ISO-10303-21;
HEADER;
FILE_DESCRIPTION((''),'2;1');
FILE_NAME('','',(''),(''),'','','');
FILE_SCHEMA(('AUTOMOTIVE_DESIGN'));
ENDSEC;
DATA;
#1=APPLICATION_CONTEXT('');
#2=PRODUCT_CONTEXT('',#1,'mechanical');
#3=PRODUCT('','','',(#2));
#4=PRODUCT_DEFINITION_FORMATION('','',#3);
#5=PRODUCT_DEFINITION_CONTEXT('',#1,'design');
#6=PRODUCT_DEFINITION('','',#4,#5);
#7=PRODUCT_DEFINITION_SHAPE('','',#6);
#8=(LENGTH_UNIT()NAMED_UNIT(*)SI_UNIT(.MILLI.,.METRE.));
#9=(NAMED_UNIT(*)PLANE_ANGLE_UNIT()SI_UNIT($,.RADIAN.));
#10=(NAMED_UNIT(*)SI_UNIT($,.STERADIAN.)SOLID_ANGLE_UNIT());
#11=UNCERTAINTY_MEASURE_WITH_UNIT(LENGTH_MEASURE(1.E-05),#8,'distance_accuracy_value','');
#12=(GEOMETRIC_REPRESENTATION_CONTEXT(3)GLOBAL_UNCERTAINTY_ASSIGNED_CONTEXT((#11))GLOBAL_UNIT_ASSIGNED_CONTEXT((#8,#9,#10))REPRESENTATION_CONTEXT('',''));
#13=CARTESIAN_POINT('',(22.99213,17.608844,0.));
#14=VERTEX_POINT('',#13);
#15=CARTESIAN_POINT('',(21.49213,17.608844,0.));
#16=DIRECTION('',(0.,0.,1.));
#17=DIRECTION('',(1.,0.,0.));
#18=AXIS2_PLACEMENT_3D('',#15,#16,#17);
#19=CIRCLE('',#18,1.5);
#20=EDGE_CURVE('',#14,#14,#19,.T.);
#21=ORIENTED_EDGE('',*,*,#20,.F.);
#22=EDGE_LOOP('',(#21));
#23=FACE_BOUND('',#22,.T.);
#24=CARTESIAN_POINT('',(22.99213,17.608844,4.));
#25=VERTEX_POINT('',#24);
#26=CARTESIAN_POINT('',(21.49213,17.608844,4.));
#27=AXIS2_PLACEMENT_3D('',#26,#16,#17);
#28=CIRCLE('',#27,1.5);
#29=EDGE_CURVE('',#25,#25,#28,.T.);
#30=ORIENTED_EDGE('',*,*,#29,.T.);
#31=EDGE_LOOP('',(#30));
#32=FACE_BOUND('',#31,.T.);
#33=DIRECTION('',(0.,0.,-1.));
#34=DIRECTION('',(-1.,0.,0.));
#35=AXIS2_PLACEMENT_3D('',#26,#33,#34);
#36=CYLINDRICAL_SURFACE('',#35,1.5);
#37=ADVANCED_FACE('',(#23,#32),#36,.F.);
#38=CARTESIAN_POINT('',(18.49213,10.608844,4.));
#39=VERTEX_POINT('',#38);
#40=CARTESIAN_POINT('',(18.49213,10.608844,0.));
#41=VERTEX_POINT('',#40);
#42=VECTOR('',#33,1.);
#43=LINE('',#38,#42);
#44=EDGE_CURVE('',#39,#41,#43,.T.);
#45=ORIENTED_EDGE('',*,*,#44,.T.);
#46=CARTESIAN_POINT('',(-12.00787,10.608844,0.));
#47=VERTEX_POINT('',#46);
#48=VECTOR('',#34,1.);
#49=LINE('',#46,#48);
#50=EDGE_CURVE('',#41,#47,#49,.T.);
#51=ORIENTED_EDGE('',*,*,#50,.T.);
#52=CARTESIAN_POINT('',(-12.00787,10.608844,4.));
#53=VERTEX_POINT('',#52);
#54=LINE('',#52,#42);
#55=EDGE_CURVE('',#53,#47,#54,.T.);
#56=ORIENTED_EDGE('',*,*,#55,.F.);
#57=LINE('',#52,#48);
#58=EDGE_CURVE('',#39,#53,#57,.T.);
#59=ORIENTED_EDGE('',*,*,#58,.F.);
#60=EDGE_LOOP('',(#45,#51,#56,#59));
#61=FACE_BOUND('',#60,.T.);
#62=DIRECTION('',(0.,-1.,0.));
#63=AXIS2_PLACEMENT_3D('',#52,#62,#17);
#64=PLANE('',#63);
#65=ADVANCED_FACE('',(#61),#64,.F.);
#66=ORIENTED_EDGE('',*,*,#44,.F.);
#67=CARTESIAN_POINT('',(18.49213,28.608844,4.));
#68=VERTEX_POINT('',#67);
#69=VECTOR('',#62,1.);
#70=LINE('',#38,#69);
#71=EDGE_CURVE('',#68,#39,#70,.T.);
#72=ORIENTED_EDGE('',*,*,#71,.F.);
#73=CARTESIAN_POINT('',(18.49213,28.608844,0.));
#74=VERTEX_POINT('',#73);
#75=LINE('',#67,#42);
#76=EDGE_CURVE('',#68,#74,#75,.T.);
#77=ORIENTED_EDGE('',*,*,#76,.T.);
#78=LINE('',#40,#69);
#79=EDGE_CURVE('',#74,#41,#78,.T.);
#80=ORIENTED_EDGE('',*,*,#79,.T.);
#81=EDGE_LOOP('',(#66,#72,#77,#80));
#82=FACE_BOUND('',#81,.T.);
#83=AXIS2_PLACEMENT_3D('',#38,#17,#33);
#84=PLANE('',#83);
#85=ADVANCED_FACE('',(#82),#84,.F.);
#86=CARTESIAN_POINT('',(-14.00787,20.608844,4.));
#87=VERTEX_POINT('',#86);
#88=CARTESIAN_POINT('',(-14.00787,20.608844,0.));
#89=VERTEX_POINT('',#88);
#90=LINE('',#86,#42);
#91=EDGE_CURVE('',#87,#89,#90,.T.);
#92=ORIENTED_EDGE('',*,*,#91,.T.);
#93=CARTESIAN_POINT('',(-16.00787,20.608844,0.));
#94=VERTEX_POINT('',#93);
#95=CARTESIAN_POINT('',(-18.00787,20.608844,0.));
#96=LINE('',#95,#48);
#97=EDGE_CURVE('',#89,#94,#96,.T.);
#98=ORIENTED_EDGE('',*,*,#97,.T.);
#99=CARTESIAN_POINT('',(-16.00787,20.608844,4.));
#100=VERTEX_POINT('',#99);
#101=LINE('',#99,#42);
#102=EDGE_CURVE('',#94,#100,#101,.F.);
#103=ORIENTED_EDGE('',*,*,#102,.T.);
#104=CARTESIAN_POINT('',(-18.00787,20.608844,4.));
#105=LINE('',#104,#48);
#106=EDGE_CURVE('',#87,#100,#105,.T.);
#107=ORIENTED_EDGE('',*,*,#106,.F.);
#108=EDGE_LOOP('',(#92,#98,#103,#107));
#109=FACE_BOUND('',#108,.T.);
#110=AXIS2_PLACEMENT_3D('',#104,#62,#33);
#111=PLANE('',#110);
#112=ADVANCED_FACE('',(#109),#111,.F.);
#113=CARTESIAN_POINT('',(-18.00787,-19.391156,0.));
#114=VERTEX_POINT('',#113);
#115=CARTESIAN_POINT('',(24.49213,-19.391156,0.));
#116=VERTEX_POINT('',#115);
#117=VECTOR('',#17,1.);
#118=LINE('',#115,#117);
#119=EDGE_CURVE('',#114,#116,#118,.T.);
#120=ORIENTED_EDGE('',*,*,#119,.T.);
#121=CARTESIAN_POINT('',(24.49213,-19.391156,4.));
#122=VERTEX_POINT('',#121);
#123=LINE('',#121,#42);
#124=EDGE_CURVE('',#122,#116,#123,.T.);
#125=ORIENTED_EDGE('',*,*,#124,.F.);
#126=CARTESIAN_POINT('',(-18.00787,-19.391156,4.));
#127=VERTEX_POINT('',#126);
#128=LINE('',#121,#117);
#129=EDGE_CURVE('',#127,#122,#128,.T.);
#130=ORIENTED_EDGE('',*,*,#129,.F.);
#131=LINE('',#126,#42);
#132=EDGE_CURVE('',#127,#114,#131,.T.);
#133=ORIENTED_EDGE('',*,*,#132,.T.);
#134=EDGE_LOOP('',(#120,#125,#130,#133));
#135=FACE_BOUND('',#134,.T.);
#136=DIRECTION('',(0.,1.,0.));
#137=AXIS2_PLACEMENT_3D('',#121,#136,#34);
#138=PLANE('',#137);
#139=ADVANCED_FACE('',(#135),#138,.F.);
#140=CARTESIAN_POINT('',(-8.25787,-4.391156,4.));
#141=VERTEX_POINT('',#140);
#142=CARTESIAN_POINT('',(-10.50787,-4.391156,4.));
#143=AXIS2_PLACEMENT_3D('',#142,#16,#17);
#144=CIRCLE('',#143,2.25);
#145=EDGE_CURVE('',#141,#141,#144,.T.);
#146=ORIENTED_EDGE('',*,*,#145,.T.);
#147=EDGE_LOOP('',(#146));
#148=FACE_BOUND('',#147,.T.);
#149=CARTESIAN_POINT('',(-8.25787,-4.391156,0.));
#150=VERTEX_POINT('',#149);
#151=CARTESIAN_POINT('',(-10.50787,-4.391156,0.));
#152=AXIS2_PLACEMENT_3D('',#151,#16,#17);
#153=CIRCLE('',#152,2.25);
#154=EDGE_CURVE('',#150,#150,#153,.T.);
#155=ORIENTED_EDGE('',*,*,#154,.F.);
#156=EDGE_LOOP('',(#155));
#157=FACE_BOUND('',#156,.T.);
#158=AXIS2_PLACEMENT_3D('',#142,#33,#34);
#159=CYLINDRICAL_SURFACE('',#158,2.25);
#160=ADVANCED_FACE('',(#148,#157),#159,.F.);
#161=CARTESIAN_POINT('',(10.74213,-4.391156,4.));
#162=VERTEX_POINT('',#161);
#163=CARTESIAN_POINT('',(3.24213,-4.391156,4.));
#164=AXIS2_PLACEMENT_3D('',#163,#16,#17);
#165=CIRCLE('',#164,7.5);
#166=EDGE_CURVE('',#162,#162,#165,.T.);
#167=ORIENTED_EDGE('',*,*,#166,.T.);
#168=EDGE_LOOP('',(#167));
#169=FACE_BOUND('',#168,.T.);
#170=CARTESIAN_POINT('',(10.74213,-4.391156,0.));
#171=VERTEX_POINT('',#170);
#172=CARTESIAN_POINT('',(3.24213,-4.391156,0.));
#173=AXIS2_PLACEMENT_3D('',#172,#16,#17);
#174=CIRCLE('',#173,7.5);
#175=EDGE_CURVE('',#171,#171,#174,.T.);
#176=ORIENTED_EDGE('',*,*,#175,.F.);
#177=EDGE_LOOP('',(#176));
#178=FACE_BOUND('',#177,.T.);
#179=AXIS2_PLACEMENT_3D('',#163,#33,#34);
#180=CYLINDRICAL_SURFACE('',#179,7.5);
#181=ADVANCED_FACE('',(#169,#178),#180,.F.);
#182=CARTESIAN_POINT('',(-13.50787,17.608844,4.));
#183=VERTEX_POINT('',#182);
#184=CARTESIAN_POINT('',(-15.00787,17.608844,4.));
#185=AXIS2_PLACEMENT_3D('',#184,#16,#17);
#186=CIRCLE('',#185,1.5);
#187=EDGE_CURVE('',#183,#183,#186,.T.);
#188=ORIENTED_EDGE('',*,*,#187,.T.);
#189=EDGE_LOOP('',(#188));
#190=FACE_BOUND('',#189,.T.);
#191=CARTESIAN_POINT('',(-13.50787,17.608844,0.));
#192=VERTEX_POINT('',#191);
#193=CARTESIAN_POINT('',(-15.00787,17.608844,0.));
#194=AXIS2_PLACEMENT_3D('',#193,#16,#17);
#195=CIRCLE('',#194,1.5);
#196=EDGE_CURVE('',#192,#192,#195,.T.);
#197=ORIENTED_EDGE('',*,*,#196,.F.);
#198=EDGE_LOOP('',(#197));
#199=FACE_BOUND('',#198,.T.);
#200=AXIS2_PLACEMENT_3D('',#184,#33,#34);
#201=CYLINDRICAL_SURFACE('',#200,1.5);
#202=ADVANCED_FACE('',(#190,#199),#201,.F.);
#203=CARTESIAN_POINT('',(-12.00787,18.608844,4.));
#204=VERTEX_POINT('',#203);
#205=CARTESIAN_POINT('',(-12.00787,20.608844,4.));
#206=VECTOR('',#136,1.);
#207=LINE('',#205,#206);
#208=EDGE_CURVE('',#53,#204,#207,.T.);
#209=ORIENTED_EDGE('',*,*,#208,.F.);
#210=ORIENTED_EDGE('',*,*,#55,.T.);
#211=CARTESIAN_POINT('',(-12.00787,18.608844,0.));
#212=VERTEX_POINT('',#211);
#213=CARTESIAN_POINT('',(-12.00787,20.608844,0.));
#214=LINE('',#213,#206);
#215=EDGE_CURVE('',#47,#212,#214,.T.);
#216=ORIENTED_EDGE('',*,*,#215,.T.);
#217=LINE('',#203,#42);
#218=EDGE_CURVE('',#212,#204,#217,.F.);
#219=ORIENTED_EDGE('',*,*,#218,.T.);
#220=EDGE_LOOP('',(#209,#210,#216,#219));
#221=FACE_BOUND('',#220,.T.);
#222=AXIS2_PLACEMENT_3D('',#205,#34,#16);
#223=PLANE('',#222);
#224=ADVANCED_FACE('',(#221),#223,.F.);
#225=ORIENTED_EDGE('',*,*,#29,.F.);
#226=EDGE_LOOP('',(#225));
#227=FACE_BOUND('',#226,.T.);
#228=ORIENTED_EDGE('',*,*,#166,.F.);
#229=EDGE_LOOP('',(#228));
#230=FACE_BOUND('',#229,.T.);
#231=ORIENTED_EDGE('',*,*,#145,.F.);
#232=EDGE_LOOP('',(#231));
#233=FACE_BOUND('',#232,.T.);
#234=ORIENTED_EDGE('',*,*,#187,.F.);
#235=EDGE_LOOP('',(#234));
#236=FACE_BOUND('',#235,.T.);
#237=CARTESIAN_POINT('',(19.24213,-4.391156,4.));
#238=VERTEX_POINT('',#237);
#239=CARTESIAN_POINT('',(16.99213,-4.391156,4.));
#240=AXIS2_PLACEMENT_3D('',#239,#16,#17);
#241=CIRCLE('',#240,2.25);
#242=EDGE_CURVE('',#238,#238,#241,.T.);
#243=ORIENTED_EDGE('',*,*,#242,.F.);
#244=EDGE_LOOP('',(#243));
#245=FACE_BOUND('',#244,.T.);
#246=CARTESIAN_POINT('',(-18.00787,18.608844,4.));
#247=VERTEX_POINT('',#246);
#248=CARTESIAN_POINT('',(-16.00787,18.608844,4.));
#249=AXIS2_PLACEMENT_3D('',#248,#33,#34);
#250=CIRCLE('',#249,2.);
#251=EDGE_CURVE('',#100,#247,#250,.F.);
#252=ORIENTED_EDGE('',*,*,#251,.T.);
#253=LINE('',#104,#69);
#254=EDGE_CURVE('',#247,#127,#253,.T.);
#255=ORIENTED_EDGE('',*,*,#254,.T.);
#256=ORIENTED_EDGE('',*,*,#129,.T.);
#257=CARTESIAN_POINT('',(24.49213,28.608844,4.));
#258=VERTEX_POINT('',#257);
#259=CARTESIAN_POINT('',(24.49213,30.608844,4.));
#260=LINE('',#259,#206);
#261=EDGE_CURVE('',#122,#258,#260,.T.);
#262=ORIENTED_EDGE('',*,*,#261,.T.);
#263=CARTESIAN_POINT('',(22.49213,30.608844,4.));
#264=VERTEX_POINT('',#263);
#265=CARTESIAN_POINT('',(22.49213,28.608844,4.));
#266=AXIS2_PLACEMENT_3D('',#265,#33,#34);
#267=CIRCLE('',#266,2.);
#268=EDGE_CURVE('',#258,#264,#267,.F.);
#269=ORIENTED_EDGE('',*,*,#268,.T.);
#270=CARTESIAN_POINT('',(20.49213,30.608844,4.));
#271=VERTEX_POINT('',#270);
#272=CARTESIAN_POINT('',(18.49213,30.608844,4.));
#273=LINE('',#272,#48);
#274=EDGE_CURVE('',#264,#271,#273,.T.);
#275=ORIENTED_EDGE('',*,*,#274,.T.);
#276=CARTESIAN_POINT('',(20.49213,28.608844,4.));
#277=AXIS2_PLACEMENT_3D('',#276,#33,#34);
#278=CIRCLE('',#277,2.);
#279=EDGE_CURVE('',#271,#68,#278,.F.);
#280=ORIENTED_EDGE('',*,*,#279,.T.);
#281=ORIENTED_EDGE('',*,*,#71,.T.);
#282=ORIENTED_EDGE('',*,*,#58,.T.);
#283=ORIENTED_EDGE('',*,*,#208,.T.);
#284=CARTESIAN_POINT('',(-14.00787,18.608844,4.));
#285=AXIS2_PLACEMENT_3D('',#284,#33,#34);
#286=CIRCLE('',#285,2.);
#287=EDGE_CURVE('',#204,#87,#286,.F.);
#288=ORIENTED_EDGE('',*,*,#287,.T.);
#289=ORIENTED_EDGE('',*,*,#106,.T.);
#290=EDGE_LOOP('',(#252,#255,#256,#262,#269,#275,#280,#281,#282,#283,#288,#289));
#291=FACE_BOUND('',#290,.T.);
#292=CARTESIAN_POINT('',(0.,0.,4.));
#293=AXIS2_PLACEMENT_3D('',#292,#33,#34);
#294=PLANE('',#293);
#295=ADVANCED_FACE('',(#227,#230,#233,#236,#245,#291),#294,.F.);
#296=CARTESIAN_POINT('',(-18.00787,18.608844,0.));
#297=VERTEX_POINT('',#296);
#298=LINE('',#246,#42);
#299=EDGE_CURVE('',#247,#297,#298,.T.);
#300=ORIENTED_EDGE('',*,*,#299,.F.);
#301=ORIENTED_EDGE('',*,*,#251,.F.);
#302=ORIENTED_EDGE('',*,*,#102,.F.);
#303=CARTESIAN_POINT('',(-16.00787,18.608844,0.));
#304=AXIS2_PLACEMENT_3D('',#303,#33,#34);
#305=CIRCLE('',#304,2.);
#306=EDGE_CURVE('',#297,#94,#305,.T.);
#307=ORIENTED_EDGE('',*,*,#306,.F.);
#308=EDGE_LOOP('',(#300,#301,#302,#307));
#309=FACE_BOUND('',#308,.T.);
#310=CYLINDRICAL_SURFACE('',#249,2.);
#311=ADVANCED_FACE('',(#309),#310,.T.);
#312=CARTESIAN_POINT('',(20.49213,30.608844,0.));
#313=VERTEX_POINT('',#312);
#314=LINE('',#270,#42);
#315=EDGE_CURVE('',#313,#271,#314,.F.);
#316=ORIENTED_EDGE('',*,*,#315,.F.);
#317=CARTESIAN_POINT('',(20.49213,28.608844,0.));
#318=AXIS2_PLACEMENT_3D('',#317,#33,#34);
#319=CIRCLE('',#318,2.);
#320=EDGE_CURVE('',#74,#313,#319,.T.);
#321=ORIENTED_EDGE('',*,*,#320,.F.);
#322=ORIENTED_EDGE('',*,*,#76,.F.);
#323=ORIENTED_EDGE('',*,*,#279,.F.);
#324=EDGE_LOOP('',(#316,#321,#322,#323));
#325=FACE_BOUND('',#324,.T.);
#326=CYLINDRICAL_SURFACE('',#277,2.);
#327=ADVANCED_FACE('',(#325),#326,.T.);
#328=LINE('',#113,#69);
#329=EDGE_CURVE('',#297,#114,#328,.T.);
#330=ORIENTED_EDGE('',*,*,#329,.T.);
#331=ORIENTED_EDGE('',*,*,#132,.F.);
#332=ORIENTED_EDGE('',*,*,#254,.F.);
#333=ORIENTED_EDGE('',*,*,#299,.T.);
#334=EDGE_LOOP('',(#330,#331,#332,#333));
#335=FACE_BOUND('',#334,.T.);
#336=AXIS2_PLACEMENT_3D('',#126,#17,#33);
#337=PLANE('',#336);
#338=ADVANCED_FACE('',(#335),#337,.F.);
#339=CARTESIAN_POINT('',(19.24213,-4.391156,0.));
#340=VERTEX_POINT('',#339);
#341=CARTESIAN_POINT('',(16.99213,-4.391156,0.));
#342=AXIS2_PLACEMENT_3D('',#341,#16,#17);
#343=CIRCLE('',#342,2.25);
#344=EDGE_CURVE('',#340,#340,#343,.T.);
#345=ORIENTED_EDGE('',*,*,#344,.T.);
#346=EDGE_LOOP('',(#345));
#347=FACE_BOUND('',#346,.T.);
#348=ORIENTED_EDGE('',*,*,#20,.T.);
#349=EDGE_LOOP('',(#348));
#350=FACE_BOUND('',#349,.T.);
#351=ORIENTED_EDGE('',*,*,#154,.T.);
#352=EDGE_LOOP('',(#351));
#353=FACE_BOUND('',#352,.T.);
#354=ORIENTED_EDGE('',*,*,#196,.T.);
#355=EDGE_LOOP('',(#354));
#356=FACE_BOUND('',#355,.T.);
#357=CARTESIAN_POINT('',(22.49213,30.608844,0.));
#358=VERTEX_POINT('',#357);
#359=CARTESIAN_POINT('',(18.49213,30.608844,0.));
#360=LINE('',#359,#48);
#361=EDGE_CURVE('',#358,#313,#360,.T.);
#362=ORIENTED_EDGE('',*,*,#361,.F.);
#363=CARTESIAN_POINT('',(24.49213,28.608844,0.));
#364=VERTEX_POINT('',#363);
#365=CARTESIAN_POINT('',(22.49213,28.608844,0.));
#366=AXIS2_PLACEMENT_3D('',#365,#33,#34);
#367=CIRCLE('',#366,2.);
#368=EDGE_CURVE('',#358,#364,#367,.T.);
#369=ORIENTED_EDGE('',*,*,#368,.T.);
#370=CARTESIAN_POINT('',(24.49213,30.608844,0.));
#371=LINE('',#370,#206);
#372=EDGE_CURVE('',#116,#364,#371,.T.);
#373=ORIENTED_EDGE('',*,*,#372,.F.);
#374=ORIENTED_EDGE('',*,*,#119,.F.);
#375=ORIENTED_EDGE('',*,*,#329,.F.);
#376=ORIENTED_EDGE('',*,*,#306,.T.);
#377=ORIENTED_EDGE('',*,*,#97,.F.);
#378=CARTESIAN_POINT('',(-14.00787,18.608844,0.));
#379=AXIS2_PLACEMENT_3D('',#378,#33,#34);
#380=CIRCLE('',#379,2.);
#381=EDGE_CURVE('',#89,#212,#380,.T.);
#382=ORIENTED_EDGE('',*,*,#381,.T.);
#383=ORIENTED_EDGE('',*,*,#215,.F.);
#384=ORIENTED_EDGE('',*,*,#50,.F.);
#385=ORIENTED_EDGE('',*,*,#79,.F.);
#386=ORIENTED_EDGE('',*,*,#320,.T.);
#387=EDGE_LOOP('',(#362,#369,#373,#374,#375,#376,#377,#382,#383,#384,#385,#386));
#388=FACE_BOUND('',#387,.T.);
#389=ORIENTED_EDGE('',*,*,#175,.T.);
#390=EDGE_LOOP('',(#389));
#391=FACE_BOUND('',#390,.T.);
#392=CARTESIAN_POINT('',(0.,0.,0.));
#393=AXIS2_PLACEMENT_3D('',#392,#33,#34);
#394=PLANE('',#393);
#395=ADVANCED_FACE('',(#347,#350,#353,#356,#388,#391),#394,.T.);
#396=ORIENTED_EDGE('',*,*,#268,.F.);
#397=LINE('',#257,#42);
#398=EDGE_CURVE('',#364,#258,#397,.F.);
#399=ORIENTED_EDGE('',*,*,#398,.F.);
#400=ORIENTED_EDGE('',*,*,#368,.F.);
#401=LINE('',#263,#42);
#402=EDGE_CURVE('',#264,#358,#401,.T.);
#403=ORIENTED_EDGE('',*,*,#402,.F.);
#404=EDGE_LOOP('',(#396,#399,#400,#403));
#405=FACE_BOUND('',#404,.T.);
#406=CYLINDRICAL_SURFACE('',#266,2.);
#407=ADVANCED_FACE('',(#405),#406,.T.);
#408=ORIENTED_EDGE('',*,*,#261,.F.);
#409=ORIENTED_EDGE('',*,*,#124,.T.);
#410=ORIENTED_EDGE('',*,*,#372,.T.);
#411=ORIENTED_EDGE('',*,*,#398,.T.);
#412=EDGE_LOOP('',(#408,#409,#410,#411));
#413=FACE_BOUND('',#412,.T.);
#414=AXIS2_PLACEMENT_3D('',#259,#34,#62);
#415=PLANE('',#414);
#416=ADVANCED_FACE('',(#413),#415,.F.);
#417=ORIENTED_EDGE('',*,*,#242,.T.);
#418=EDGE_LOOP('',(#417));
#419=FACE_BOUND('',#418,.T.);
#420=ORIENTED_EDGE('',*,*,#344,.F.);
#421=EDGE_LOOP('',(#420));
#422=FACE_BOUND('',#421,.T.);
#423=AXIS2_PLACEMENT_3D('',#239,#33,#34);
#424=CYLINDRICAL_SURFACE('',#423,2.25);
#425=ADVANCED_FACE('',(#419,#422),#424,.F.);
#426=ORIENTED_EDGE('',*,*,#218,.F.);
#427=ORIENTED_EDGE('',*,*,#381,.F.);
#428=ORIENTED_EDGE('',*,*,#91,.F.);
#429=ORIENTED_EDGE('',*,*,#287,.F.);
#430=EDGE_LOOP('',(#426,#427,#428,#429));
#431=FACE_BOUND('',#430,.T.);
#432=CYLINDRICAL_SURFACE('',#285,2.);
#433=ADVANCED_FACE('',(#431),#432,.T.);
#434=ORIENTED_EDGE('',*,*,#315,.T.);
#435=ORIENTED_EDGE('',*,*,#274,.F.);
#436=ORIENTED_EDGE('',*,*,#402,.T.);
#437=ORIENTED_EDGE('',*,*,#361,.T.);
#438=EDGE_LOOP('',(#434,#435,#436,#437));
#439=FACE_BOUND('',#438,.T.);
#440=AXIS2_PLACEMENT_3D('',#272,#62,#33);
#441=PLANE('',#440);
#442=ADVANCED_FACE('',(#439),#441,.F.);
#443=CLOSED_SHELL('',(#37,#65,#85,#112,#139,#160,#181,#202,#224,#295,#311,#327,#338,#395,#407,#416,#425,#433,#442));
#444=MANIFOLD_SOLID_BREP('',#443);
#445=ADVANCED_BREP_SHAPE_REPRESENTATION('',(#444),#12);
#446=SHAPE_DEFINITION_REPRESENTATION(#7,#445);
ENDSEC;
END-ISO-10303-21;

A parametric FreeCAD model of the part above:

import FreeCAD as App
import Part
import Sketcher
Q = App.Units.Quantity


def edges_at(feature, points):
    """Names of the edges that pass closest to the given points."""
    edges = feature.Shape.Edges
    near = lambda p: min(range(len(edges)), key=lambda i: edges[i].distToShape(Part.Vertex(*p))[0])
    return sorted({f"Edge{near(p) + 1}" for p in points})

doc = App.newDocument("Part")
body = doc.addObject("PartDesign::Body", "Body")

# Sketch on XY plane
sketch1 = body.newObject("Sketcher::SketchObject", "Sketch")
sketch1.AttachmentSupport = (doc.getObject("XY_Plane"), [""])
sketch1.MapMode = "FlatFace"
sketch1.addGeometry([
    Part.LineSegment(App.Vector(-18, 20.6, 0), App.Vector(-18, -19.4, 0)),  # 0
    Part.LineSegment(App.Vector(-18, -19.4, 0), App.Vector(24.5, -19.4, 0)),  # 1
    Part.LineSegment(App.Vector(24.5, -19.4, 0), App.Vector(24.5, 30.6, 0)),  # 2
    Part.LineSegment(App.Vector(24.5, 30.6, 0), App.Vector(18.5, 30.6, 0)),  # 3
    Part.LineSegment(App.Vector(18.5, 30.6, 0), App.Vector(18.5, 10.6, 0)),  # 4
    Part.LineSegment(App.Vector(18.5, 10.6, 0), App.Vector(-12, 10.6, 0)),  # 5
    Part.LineSegment(App.Vector(-12, 10.6, 0), App.Vector(-12, 20.6, 0)),  # 6
    Part.LineSegment(App.Vector(-12, 20.6, 0), App.Vector(-18, 20.6, 0)),  # 7
    Part.Circle(App.Vector(-10.5, -4.4, 0), App.Vector(0, 0, 1), 2.2),  # 8
    Part.Circle(App.Vector(3.2, -4.4, 0), App.Vector(0, 0, 1), 7.5),  # 9
    Part.Circle(App.Vector(17, -4.4, 0), App.Vector(0, 0, 1), 2.2),  # 10
    Part.Circle(App.Vector(-15, 17.6, 0), App.Vector(0, 0, 1), 1.5),  # 11
    Part.Circle(App.Vector(21.5, 17.6, 0), App.Vector(0, 0, 1), 1.5),  # 12
], False)
sketch1.addConstraint([
    Sketcher.Constraint("Coincident", 0, 2, 1, 1),
    Sketcher.Constraint("Coincident", 1, 2, 2, 1),
    Sketcher.Constraint("Coincident", 2, 2, 3, 1),
    Sketcher.Constraint("Coincident", 3, 2, 4, 1),
    Sketcher.Constraint("Coincident", 4, 2, 5, 1),
    Sketcher.Constraint("Coincident", 5, 2, 6, 1),
    Sketcher.Constraint("Coincident", 6, 2, 7, 1),
    Sketcher.Constraint("Coincident", 7, 2, 0, 1),
    Sketcher.Constraint("Vertical", 0),
    Sketcher.Constraint("Horizontal", 1),
    Sketcher.Constraint("Vertical", 2),
    Sketcher.Constraint("Horizontal", 3),
    Sketcher.Constraint("Vertical", 4),
    Sketcher.Constraint("Horizontal", 5),
    Sketcher.Constraint("Vertical", 6),
    Sketcher.Constraint("Horizontal", 7),
    Sketcher.Constraint("Equal", 8, 10),
    Sketcher.Constraint("Equal", 11, 12),
    Sketcher.Constraint("Horizontal", 8, 3, 9, 3),
    Sketcher.Constraint("Horizontal", 9, 3, 10, 3),
    Sketcher.Constraint("Horizontal", 11, 3, 12, 3),
    Sketcher.Constraint("Equal", 3, 7),
    Sketcher.Constraint("Diameter", 9, Q("15 mm")),
    Sketcher.Constraint("Diameter", 11, Q("3 mm")),
    Sketcher.Constraint("Diameter", 8, Q("4.5 mm")),
    Sketcher.Constraint("DistanceX", 3, 2, 3, 1, Q("6 mm")),
    Sketcher.Constraint("DistanceY", 0, 2, 0, 1, Q("40 mm")),
    Sketcher.Constraint("DistanceY", 2, 1, 2, 2, Q("50 mm")),
    Sketcher.Constraint("DistanceY", 4, 2, 4, 1, Q("20 mm")),
    Sketcher.Constraint("DistanceX", 1, 1, 1, 2, Q("42.5 mm")),
    Sketcher.Constraint("DistanceY", 8, 3, 11, 3, Q("22 mm")),
    Sketcher.Constraint("DistanceX", 11, 3, 10, 3, Q("32 mm")),
    Sketcher.Constraint("DistanceX", 8, 3, 12, 3, Q("32 mm")),
    Sketcher.Constraint("DistanceY", 0, 2, 8, 3, Q("15 mm")),
    Sketcher.Constraint("DistanceX", 0, 2, 11, 3, Q("3 mm")),
    Sketcher.Constraint("DistanceX", 12, 3, 1, 2, Q("3 mm")),
    Sketcher.Constraint("DistanceX", 8, 3, 9, 3, Q("13.75 mm")),
    Sketcher.Constraint("DistanceX", 8, 3, -1, 1, Q("10.50787 mm")),
    Sketcher.Constraint("DistanceY", 8, 3, -1, 1, Q("4.391156 mm")),
])
pad1 = body.newObject("PartDesign::Pad", "Pad")
pad1.Profile = sketch1
pad1.Length = 4
doc.recompute()

fillet = body.newObject("PartDesign::Fillet", "Fillet")
fillet.Base = (pad1, edges_at(pad1, [
    (-12.008, 20.609, 2),
    (18.492, 30.609, 2),
    (24.492, 30.609, 2),
    (-18.008, 20.609, 2),
]))
fillet.Radius = 2

doc.recompute()
